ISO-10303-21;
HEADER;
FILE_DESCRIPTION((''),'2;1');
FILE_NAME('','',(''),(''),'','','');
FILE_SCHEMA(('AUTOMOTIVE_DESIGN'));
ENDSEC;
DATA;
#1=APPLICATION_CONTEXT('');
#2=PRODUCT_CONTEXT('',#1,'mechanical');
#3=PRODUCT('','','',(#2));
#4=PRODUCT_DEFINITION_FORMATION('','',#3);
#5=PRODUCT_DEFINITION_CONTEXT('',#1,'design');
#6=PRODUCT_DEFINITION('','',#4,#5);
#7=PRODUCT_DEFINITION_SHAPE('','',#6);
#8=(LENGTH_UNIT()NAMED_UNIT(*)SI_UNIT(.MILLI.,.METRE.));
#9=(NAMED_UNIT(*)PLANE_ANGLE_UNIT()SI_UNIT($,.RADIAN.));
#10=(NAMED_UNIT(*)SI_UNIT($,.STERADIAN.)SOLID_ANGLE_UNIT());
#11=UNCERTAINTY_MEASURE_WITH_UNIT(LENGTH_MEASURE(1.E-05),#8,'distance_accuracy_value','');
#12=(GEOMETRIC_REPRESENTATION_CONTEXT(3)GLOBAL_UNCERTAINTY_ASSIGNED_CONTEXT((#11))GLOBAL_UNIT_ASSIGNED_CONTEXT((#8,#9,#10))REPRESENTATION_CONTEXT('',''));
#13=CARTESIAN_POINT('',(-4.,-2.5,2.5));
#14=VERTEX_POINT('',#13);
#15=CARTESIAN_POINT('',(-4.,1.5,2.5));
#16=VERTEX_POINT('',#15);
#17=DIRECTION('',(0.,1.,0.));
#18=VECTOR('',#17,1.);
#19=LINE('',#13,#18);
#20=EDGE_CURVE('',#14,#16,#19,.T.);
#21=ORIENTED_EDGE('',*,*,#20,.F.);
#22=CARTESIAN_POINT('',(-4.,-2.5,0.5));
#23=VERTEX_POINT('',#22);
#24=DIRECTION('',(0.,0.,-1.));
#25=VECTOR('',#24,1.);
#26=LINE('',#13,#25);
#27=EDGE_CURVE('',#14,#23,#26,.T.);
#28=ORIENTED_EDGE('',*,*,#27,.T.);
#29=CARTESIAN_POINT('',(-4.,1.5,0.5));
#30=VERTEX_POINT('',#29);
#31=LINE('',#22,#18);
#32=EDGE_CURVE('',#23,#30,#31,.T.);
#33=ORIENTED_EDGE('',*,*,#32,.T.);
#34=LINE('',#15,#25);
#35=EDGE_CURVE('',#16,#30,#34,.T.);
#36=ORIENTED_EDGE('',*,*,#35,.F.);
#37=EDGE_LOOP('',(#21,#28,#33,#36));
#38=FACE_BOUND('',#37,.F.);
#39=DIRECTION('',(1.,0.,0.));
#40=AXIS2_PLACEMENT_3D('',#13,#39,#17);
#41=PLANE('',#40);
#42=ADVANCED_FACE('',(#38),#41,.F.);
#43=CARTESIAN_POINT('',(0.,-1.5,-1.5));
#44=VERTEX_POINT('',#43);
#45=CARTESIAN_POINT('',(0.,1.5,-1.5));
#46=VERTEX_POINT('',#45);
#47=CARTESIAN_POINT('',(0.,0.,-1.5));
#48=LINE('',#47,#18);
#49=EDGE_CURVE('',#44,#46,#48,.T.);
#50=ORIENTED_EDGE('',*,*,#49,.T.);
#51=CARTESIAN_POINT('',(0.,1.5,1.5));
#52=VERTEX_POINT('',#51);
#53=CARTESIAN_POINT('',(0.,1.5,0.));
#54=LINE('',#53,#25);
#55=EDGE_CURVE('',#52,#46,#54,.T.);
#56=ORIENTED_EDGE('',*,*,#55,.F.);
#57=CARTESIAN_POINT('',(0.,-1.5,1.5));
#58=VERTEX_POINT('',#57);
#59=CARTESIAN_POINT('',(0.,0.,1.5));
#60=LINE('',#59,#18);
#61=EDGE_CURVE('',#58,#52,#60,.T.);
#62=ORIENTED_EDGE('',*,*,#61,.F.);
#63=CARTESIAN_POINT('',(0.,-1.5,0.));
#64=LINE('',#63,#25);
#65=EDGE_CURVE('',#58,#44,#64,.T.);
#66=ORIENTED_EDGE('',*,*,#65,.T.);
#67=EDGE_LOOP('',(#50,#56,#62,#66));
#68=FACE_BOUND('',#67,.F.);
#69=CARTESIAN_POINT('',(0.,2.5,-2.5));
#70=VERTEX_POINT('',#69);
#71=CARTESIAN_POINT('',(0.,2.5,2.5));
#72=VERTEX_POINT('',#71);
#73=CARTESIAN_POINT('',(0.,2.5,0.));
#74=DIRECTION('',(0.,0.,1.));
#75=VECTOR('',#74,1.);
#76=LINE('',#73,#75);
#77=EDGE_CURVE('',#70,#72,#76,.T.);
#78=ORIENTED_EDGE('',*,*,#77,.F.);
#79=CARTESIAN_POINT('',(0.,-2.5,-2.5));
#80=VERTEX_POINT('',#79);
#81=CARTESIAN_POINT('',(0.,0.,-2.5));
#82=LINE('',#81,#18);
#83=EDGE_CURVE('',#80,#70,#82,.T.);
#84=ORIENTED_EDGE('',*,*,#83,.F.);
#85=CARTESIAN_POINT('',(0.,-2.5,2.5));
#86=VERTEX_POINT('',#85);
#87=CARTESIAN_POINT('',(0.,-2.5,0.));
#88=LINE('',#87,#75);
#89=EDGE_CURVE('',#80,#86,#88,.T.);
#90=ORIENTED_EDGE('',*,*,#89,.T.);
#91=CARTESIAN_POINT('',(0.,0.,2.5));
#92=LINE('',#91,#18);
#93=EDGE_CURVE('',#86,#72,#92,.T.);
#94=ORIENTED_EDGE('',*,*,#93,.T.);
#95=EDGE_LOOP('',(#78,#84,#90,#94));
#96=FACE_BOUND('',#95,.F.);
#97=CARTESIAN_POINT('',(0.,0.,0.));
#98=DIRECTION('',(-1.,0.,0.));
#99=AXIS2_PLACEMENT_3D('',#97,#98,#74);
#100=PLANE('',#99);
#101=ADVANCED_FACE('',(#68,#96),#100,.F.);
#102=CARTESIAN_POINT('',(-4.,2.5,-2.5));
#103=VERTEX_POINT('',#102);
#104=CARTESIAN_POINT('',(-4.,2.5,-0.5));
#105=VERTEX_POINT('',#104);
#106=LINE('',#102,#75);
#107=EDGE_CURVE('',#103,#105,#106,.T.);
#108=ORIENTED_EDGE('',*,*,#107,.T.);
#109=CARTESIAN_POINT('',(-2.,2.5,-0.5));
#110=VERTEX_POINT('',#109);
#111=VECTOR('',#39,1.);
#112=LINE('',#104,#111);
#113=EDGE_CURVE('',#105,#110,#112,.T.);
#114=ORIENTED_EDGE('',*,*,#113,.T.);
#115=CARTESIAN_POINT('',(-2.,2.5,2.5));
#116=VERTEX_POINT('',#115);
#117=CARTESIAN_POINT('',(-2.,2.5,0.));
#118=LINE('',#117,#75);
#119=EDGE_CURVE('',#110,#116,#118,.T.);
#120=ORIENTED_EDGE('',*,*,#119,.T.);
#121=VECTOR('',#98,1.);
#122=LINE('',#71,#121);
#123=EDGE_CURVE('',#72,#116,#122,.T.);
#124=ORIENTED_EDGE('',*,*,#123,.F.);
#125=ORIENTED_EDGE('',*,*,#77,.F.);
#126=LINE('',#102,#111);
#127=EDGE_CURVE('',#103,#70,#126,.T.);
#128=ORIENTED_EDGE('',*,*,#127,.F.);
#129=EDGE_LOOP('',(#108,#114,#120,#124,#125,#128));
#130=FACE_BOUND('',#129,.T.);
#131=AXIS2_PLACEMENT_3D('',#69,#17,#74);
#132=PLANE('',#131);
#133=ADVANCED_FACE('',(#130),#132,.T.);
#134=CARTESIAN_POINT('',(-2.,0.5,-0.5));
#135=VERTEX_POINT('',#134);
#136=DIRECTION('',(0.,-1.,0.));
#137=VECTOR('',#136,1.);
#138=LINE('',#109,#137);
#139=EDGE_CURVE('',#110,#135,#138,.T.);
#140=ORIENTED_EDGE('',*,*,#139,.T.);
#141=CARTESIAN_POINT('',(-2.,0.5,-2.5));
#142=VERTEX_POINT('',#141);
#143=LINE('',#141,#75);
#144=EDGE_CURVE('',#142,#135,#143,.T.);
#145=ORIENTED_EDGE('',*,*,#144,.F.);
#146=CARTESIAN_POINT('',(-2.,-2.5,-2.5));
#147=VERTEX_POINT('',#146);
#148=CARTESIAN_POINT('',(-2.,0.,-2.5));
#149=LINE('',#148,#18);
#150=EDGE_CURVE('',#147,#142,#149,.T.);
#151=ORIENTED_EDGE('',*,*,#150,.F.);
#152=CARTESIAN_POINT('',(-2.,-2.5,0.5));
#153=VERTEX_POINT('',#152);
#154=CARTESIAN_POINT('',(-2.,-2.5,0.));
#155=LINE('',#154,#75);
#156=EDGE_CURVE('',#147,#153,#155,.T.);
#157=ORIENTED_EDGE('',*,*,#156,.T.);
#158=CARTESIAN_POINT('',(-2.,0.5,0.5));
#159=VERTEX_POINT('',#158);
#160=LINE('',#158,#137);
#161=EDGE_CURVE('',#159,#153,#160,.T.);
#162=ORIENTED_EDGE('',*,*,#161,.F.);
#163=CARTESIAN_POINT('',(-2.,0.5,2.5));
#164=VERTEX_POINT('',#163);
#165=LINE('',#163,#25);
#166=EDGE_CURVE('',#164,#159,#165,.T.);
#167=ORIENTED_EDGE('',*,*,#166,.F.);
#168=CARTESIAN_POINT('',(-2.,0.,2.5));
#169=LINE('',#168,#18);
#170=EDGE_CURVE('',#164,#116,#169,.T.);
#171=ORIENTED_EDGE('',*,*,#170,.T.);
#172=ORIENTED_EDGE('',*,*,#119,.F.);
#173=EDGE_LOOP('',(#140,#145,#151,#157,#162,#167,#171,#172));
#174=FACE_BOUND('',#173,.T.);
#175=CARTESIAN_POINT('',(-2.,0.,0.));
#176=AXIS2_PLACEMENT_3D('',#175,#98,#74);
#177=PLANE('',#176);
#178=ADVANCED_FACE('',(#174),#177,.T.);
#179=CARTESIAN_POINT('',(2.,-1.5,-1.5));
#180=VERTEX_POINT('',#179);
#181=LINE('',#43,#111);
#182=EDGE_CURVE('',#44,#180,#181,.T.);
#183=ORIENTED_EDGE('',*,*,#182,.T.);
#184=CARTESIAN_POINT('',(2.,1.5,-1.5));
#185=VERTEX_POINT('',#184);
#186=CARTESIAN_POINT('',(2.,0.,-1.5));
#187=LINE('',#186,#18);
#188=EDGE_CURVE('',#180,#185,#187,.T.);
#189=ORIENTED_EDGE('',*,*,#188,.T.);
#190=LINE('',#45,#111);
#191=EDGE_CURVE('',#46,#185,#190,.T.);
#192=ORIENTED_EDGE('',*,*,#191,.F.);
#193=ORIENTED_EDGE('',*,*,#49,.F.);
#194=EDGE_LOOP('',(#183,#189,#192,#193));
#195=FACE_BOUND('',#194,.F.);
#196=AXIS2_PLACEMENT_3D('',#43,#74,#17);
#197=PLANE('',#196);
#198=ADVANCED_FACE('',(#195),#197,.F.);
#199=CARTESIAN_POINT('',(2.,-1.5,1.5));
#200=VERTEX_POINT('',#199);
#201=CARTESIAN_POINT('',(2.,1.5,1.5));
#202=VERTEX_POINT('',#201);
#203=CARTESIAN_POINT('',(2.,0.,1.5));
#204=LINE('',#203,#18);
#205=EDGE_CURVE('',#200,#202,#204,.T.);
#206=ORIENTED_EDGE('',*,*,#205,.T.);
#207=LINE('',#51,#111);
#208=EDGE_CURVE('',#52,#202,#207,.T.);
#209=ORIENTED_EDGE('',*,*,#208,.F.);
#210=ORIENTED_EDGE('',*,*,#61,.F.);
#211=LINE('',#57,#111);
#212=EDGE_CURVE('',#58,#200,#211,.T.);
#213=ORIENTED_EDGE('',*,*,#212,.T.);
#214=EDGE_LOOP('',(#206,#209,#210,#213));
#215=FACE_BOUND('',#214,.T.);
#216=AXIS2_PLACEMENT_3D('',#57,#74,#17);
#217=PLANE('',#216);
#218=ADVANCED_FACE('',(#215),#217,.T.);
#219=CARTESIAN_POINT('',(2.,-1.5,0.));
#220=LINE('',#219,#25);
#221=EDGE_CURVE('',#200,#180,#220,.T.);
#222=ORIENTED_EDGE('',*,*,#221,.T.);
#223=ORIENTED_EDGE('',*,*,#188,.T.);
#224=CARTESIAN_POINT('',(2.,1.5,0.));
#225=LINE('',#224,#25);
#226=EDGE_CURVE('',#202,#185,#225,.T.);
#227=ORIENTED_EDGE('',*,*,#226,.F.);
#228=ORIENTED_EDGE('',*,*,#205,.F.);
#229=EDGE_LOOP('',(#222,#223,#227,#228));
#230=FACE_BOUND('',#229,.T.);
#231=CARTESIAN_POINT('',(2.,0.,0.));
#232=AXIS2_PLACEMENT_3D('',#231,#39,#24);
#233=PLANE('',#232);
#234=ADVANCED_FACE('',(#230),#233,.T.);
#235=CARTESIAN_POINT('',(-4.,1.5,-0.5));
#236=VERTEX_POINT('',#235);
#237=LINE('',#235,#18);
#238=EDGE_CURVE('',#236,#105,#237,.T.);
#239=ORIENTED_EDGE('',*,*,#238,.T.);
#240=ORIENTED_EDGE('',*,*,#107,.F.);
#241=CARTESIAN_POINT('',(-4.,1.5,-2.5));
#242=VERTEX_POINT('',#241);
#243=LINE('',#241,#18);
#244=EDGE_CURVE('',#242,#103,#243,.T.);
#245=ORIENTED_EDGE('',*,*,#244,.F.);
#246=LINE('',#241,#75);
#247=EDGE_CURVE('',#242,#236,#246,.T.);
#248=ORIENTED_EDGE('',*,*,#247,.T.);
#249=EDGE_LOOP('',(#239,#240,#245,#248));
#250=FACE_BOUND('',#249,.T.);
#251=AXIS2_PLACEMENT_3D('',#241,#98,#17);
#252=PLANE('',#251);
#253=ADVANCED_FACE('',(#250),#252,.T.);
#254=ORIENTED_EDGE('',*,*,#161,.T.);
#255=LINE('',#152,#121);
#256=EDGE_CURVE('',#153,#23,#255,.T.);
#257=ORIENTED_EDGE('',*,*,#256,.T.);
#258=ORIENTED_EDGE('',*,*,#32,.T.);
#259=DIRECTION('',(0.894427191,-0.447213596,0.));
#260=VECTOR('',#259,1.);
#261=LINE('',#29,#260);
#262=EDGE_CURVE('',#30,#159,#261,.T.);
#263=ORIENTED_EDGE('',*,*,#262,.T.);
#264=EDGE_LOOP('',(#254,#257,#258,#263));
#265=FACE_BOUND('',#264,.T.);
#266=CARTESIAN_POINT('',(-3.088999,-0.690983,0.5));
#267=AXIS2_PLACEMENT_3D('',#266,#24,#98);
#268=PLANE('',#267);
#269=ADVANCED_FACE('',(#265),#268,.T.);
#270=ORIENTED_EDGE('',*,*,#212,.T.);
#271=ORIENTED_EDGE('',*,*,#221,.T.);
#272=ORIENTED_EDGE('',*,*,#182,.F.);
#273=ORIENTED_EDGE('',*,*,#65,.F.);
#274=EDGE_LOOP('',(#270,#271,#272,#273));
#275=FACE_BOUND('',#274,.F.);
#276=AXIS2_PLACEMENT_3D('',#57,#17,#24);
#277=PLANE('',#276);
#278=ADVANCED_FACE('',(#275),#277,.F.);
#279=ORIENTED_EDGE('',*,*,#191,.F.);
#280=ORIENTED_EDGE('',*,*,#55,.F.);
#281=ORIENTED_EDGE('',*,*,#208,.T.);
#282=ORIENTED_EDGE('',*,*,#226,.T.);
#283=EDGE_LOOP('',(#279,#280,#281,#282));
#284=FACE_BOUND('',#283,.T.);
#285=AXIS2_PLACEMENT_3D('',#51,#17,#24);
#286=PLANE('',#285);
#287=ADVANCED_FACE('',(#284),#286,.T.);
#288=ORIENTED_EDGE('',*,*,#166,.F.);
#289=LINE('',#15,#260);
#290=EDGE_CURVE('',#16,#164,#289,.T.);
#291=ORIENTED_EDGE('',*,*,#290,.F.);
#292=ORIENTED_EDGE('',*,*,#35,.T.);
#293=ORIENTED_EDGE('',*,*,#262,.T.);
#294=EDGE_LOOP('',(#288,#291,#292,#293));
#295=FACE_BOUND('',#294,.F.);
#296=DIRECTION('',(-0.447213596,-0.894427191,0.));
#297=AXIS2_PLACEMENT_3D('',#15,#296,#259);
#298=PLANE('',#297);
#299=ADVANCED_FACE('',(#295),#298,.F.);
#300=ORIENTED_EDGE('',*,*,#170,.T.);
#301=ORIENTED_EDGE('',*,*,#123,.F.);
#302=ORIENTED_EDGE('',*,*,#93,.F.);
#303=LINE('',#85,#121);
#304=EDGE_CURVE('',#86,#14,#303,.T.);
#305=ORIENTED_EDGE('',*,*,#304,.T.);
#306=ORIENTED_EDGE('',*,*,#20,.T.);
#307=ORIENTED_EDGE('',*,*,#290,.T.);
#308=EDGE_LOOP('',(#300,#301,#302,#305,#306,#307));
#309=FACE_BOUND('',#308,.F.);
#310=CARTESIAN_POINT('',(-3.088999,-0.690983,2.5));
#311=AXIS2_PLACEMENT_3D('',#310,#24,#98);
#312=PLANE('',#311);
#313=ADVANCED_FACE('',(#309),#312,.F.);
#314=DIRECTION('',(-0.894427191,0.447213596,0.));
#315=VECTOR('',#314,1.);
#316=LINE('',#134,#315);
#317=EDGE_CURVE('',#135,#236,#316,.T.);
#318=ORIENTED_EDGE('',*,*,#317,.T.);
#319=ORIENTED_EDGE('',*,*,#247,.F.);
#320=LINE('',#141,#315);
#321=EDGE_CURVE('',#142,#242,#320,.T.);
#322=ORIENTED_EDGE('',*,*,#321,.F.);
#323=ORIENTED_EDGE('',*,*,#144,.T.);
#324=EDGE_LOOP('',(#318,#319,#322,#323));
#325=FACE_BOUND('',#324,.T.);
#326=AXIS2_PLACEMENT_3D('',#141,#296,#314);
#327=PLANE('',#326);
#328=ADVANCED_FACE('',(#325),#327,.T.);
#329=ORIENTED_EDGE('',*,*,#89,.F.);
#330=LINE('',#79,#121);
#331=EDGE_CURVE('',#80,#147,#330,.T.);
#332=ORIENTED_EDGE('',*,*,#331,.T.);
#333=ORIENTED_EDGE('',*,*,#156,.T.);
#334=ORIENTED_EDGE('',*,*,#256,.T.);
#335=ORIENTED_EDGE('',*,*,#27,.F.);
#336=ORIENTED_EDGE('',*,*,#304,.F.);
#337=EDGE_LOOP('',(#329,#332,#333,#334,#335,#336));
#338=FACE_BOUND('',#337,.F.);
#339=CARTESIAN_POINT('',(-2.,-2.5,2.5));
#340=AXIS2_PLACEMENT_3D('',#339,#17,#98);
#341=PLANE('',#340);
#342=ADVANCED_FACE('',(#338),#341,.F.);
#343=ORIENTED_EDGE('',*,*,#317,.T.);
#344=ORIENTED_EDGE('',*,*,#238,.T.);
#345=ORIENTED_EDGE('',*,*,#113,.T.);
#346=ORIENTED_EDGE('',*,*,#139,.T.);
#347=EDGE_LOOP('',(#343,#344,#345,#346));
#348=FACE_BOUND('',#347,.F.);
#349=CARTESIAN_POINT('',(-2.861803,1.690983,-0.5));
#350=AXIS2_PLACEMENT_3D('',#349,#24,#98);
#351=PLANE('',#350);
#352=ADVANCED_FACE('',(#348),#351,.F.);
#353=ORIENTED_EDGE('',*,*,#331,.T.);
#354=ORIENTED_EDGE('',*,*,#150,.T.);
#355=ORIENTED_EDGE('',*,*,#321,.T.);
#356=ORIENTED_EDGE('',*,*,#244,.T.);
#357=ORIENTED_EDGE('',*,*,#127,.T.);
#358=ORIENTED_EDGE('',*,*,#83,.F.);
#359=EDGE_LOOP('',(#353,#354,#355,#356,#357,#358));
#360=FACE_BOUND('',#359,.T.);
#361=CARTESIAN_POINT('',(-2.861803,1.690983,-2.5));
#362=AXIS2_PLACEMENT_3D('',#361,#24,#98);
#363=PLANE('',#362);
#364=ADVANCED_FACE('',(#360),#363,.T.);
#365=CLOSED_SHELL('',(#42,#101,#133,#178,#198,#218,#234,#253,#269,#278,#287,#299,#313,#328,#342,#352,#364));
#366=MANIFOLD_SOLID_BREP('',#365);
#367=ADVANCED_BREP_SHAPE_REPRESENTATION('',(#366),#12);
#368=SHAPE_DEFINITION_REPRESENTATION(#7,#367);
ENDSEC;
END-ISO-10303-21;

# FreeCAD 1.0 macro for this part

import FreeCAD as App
import Part
import Sketcher

doc = App.newDocument("Part")
body = doc.addObject("PartDesign::Body", "Body")

# Sketch on YZ plane
sketch1 = body.newObject("Sketcher::SketchObject", "Sketch")
sketch1.AttachmentSupport = (doc.getObject("YZ_Plane"), [""])
sketch1.MapMode = "FlatFace"
sketch1.addGeometry(Part.LineSegment(App.Vector(1.5, 1.5, 0), App.Vector(-1.5, 1.5, 0)), False)
sketch1.addGeometry(Part.LineSegment(App.Vector(-1.5, 1.5, 0), App.Vector(-1.5, -1.5, 0)), False)
sketch1.addGeometry(Part.LineSegment(App.Vector(-1.5, -1.5, 0), App.Vector(1.5, -1.5, 0)), False)
sketch1.addGeometry(Part.LineSegment(App.Vector(1.5, -1.5, 0), App.Vector(1.5, 1.5, 0)), False)
sketch1.addConstraint(Sketcher.Constraint("Coincident", 0, 2, 1, 1))
sketch1.addConstraint(Sketcher.Constraint("Coincident", 1, 2, 2, 1))
sketch1.addConstraint(Sketcher.Constraint("Coincident", 2, 2, 3, 1))
sketch1.addConstraint(Sketcher.Constraint("Coincident", 3, 2, 0, 1))
sketch1.addConstraint(Sketcher.Constraint("Horizontal", 0))
sketch1.addConstraint(Sketcher.Constraint("Vertical", 1))
sketch1.addConstraint(Sketcher.Constraint("Horizontal", 2))
sketch1.addConstraint(Sketcher.Constraint("Vertical", 3))
sketch1.addConstraint(Sketcher.Constraint("Symmetric", 0, 2, 2, 2, -1, 1))
sketch1.addConstraint(Sketcher.Constraint("Equal", 2, 1))
sketch1.addConstraint(Sketcher.Constraint("DistanceX", 0, 2, 0, 1, 3.0))
pad1 = body.newObject("PartDesign::Pad", "Pad")
pad1.Profile = sketch1
pad1.Length = 2

# Sketch on YZ plane
sketch2 = body.newObject("Sketcher::SketchObject", "Sketch001")
sketch2.AttachmentSupport = (doc.getObject("YZ_Plane"), [""])
sketch2.MapMode = "FlatFace"
sketch2.addGeometry(Part.LineSegment(App.Vector(2, -2, 0), App.Vector(-2, -2, 0)), False)
sketch2.addGeometry(Part.LineSegment(App.Vector(-2, -2, 0), App.Vector(-2, 2, 0)), False)
sketch2.addGeometry(Part.LineSegment(App.Vector(-2, 2, 0), App.Vector(2, 2, 0)), False)
sketch2.addGeometry(Part.LineSegment(App.Vector(2, 2, 0), App.Vector(2, -2, 0)), False)
sketch2.addConstraint(Sketcher.Constraint("Coincident", 0, 2, 1, 1))
sketch2.addConstraint(Sketcher.Constraint("Coincident", 1, 2, 2, 1))
sketch2.addConstraint(Sketcher.Constraint("Coincident", 2, 2, 3, 1))
sketch2.addConstraint(Sketcher.Constraint("Coincident", 3, 2, 0, 1))
sketch2.addConstraint(Sketcher.Constraint("Horizontal", 0))
sketch2.addConstraint(Sketcher.Constraint("Vertical", 1))
sketch2.addConstraint(Sketcher.Constraint("Horizontal", 2))
sketch2.addConstraint(Sketcher.Constraint("Vertical", 3))
sketch2.addConstraint(Sketcher.Constraint("Symmetric", 0, 2, 2, 2, -1, 1))
sketch2.addConstraint(Sketcher.Constraint("Equal", 2, 1))
sketch2.addConstraint(Sketcher.Constraint("DistanceX", 0, 2, 0, 1, 5.0))
pad2 = body.newObject("PartDesign::Pad", "Pad001")
pad2.Profile = sketch2
pad2.Length = 2
pad2.Reversed = True

# Sketch on XY plane
sketch3 = body.newObject("Sketcher::SketchObject", "Sketch002")
sketch3.AttachmentSupport = (doc.getObject("XY_Plane"), [""])
sketch3.MapMode = "FlatFace"
sketch3.AttachmentOffset = App.Placement(App.Vector(0, 0, 2.5), App.Rotation())
sketch3.addGeometry(Part.LineSegment(App.Vector(-4, -2.5, 0), App.Vector(-2, -2.5, 0)), False)
sketch3.addGeometry(Part.LineSegment(App.Vector(-2, -2.5, 0), App.Vector(-2, 0.5, 0)), False)
sketch3.addGeometry(Part.LineSegment(App.Vector(-2, 0.5, 0), App.Vector(-4, 1.5, 0)), False)
sketch3.addGeometry(Part.LineSegment(App.Vector(-4, 1.5, 0), App.Vector(-4, -2.5, 0)), False)
sketch3.addConstraint(Sketcher.Constraint("Coincident", 0, 2, 1, 1))
sketch3.addConstraint(Sketcher.Constraint("Coincident", 1, 2, 2, 1))
sketch3.addConstraint(Sketcher.Constraint("Coincident", 2, 2, 3, 1))
sketch3.addConstraint(Sketcher.Constraint("Coincident", 3, 2, 0, 1))
sketch3.addConstraint(Sketcher.Constraint("Horizontal", 0))
sketch3.addConstraint(Sketcher.Constraint("Vertical", 1))
sketch3.addConstraint(Sketcher.Constraint("Vertical", 3))
sketch3.addConstraint(Sketcher.Constraint("DistanceX", 0, 1, 0, 2, 2.0))
sketch3.addConstraint(Sketcher.Constraint("DistanceY", 1, 1, 1, 2, 3.0))
sketch3.addConstraint(Sketcher.Constraint("DistanceY", 3, 2, 3, 1, 4.0))
sketch3.addConstraint(Sketcher.Constraint("DistanceX", 0, 2, -1, 1, 2.0))
sketch3.addConstraint(Sketcher.Constraint("DistanceY", 0, 2, -1, 1, 2.5))
pad3 = body.newObject("PartDesign::Pad", "Pad002")
pad3.Profile = sketch3
pad3.Length = 2
pad3.Reversed = True

# Sketch on XY plane
sketch4 = body.newObject("Sketcher::SketchObject", "Sketch003")
sketch4.AttachmentSupport = (doc.getObject("XY_Plane"), [""])
sketch4.MapMode = "FlatFace"
sketch4.AttachmentOffset = App.Placement(App.Vector(0, 0, -2.5), App.Rotation())
sketch4.addGeometry(Part.LineSegment(App.Vector(-2, 2.5, 0), App.Vector(-2, 0.5, 0)), False)
sketch4.addGeometry(Part.LineSegment(App.Vector(-2, 0.5, 0), App.Vector(-4, 1.5, 0)), False)
sketch4.addGeometry(Part.LineSegment(App.Vector(-4, 1.5, 0), App.Vector(-4, 2.5, 0)), False)
sketch4.addGeometry(Part.LineSegment(App.Vector(-4, 2.5, 0), App.Vector(-2, 2.5, 0)), False)
sketch4.addConstraint(Sketcher.Constraint("Coincident", 0, 2, 1, 1))
sketch4.addConstraint(Sketcher.Constraint("Coincident", 1, 2, 2, 1))
sketch4.addConstraint(Sketcher.Constraint("Coincident", 2, 2, 3, 1))
sketch4.addConstraint(Sketcher.Constraint("Coincident", 3, 2, 0, 1))
sketch4.addConstraint(Sketcher.Constraint("Vertical", 0))
sketch4.addConstraint(Sketcher.Constraint("Vertical", 2))
sketch4.addConstraint(Sketcher.Constraint("Horizontal", 3))
sketch4.addConstraint(Sketcher.Constraint("Equal", 3, 0))
sketch4.addConstraint(Sketcher.Constraint("DistanceX", 3, 1, 3, 2, 2.0))
sketch4.addConstraint(Sketcher.Constraint("DistanceY", 2, 1, 2, 2, 1.0))
sketch4.addConstraint(Sketcher.Constraint("DistanceX", 0, 2, -1, 1, 2.0))
sketch4.addConstraint(Sketcher.Constraint("DistanceY", -1, 1, 0, 2, 0.5))
pad4 = body.newObject("PartDesign::Pad", "Pad003")
pad4.Profile = sketch4
pad4.Length = 2

doc.recompute()
